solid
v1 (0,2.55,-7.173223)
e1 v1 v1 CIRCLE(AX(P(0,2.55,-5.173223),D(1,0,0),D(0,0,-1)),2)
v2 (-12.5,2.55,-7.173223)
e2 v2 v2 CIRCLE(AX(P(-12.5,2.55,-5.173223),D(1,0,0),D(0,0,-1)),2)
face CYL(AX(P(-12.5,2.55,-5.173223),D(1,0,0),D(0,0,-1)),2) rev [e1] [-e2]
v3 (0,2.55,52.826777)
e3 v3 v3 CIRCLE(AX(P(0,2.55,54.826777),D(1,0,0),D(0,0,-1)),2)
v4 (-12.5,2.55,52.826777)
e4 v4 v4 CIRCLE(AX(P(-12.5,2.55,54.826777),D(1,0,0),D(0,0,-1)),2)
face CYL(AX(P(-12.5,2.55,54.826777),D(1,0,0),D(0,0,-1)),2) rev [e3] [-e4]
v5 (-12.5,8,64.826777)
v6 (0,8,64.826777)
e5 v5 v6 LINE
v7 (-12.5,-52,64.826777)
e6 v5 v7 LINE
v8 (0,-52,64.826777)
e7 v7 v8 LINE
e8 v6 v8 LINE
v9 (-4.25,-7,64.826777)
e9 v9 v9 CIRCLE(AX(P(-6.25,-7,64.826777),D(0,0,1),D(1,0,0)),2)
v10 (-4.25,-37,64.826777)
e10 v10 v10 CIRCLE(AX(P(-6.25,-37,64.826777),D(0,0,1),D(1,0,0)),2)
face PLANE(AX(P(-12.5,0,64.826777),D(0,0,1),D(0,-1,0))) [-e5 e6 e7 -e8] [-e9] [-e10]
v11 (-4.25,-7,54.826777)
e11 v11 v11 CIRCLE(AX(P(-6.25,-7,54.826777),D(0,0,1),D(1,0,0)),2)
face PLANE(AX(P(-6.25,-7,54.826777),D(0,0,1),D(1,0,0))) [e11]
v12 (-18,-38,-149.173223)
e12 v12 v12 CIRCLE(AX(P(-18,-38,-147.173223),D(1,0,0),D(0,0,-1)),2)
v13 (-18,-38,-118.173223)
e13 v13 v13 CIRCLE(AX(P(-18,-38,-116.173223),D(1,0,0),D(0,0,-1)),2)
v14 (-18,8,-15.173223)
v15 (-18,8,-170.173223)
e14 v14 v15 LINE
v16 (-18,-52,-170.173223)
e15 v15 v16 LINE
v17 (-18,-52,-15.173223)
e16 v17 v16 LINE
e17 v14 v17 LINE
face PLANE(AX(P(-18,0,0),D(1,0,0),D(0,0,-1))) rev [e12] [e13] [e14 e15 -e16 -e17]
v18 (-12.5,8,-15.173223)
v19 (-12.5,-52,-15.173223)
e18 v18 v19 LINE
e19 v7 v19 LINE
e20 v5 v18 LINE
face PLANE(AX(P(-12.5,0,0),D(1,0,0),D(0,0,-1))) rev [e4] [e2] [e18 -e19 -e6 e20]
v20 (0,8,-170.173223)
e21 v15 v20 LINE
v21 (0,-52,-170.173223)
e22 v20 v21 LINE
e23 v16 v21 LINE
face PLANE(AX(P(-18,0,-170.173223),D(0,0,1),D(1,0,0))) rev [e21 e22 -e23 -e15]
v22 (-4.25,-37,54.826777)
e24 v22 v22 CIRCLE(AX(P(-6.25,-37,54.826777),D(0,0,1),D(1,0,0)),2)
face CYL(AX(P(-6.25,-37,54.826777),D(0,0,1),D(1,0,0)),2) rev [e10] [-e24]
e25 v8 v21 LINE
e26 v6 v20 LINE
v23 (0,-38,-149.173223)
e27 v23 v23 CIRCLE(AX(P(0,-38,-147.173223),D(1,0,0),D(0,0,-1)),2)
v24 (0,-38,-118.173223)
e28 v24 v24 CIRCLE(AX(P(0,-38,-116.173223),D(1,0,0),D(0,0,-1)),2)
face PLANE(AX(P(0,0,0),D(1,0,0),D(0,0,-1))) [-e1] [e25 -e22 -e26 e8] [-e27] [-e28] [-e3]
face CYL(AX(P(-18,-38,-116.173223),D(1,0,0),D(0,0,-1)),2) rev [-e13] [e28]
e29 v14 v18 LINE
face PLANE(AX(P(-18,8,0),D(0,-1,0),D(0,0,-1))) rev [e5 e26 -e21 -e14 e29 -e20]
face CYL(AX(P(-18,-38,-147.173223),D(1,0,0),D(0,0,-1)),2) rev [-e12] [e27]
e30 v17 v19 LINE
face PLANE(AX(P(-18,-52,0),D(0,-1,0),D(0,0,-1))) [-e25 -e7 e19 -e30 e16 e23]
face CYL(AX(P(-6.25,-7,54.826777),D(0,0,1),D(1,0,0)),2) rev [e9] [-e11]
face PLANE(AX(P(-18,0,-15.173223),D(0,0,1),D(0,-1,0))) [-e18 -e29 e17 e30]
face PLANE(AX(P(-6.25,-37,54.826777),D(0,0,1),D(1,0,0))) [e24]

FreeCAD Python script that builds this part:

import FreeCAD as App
import Part
import Sketcher
Q = App.Units.Quantity


def add_polygon(sketch, points):
    """Adds a closed chain of lines whose ends are joined by coincident constraints."""
    first, n = sketch.GeometryCount, len(points)
    for a, b in zip(points, points[1:] + points[:1]):
        sketch.addGeometry(Part.LineSegment(App.Vector(*a, 0), App.Vector(*b, 0)), False)
    for i in range(n):
        sketch.addConstraint(Sketcher.Constraint("Coincident", first + i, 2, first + (i + 1) % n, 1))

doc = App.newDocument("Part")
body = doc.addObject("PartDesign::Body", "Body")

sketch1 = body.newObject("Sketcher::SketchObject", "Sketch")
sketch1.AttachmentSupport = (doc.getObject("YZ_Plane"), [""])
sketch1.MapMode = "FlatFace"
add_polygon(sketch1, [(8, -15.2), (-52, -15.2), (-52, -170.2), (8, -170.2)])
sketch1.addGeometry(Part.Circle(App.Vector(-38, -116.2, 0), App.Vector(0, 0, 1), 2), False)
sketch1.addGeometry(Part.Circle(App.Vector(-38, -147.2, 0), App.Vector(0, 0, 1), 2), False)
sketch1.addConstraint([
    Sketcher.Constraint("Horizontal", 0),
    Sketcher.Constraint("Vertical", 1),
    Sketcher.Constraint("Horizontal", 2),
    Sketcher.Constraint("Vertical", 3),
    Sketcher.Constraint("Equal", 4, 5),
    Sketcher.Constraint("Vertical", 4, 3, 5, 3),
    Sketcher.Constraint("Diameter", 4, Q("4 mm")),
    Sketcher.Constraint("DistanceX", 0, 2, 0, 1, Q("60 mm")),
    Sketcher.Constraint("DistanceY", 1, 2, 1, 1, Q("155 mm")),
    Sketcher.Constraint("DistanceX", 4, 3, -1, 1, Q("38 mm")),
    Sketcher.Constraint("DistanceX", 0, 2, -1, 1, Q("52 mm")),
    Sketcher.Constraint("DistanceY", 5, 3, 4, 3, Q("31 mm")),
    Sketcher.Constraint("DistanceY", 4, 3, 0, 2, Q("101 mm")),
    Sketcher.Constraint("DistanceY", 4, 3, -1, 1, Q("116.173223 mm")),
])
pad1 = body.newObject("PartDesign::Pad", "Pad")
pad1.Profile = sketch1
pad1.Length = 18
pad1.Reversed = True

sketch2 = body.newObject("Sketcher::SketchObject", "Sketch001")
sketch2.AttachmentSupport = (doc.getObject("YZ_Plane"), [""])
sketch2.MapMode = "FlatFace"
add_polygon(sketch2, [(8, 64.8), (-52, 64.8), (-52, -15.2), (8, -15.2)])
sketch2.addGeometry(Part.Circle(App.Vector(2.5, 54.8, 0), App.Vector(0, 0, 1), 2), False)
sketch2.addGeometry(Part.Circle(App.Vector(2.5, -5.2, 0), App.Vector(0, 0, 1), 2), False)
sketch2.addConstraint([
    Sketcher.Constraint("Horizontal", 0),
    Sketcher.Constraint("Vertical", 1),
    Sketcher.Constraint("Horizontal", 2),
    Sketcher.Constraint("Vertical", 3),
    Sketcher.Constraint("Equal", 4, 5),
    Sketcher.Constraint("Vertical", 4, 3, 5, 3),
    Sketcher.Constraint("Diameter", 4, Q("4 mm")),
    Sketcher.Constraint("DistanceX", 0, 2, 0, 1, Q("60 mm")),
    Sketcher.Constraint("DistanceY", 1, 2, 1, 1, Q("80 mm")),
    Sketcher.Constraint("DistanceX", 0, 2, -1, 1, Q("52 mm")),
    Sketcher.Constraint("DistanceY", 5, 3, 4, 3, Q("60 mm")),
    Sketcher.Constraint("DistanceY", 4, 3, 0, 2, Q("10 mm")),
    Sketcher.Constraint("DistanceX", -1, 1, 4, 3, Q("2.55 mm")),
    Sketcher.Constraint("DistanceY", -1, 1, 4, 3, Q("54.826777 mm")),
])
pad2 = body.newObject("PartDesign::Pad", "Pad001")
pad2.Profile = sketch2
pad2.Length = 12.5
pad2.Reversed = True

sketch3 = body.newObject("Sketcher::SketchObject", "Sketch002")
sketch3.AttachmentSupport = (doc.getObject("XY_Plane"), [""])
sketch3.MapMode = "FlatFace"
sketch3.AttachmentOffset = App.Placement(App.Vector(0, 0, 64.826777), App.Rotation())
sketch3.addGeometry([
    Part.Circle(App.Vector(-6.2, -7, 0), App.Vector(0, 0, 1), 2),
    Part.Circle(App.Vector(-6.2, -37, 0), App.Vector(0, 0, 1), 2),
], False)
sketch3.addConstraint([
    Sketcher.Constraint("Equal", 0, 1),
    Sketcher.Constraint("Vertical", 0, 3, 1, 3),
    Sketcher.Constraint("Diameter", 0, Q("4 mm")),
    Sketcher.Constraint("DistanceY", 0, 3, -1, 1, Q("7 mm")),
    Sketcher.Constraint("DistanceY", 1, 3, -1, 1, Q("37 mm")),
    Sketcher.Constraint("DistanceX", 0, 3, -1, 1, Q("6.25 mm")),
])
pocket1 = body.newObject("PartDesign::Pocket", "Pocket")
pocket1.Profile = sketch3
pocket1.Length = 10

doc.recompute()
